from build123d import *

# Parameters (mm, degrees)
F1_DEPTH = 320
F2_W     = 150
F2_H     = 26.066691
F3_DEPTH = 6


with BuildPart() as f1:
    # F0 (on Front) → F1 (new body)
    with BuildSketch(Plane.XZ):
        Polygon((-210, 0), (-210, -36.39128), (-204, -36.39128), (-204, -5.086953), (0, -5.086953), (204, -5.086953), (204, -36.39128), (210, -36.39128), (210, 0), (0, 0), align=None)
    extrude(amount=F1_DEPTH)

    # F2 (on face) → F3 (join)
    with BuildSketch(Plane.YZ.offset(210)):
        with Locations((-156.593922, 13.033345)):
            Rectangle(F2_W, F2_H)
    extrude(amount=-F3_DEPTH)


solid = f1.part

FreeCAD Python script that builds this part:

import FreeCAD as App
import Part
import Sketcher

V = App.Vector

doc = App.newDocument("Part")
body = doc.addObject("PartDesign::Body", "Body")

# Sketch on XZ plane
sketch1 = body.newObject("Sketcher::SketchObject", "Sketch")
sketch1.AttachmentSupport = (doc.getObject("XZ_Plane"), [""])
sketch1.MapMode = "FlatFace"
sketch1.addGeometry([
    Part.LineSegment(V(-210, 0, 0), V(-210, -36, 0)),  # 0
    Part.LineSegment(V(-210, -36, 0), V(-204, -36, 0)),  # 1
    Part.LineSegment(V(-204, -36, 0), V(-204, -5, 0)),  # 2
    Part.LineSegment(V(-204, -5, 0), V(204, -5, 0)),  # 3
    Part.LineSegment(V(204, -5, 0), V(204, -36, 0)),  # 4
    Part.LineSegment(V(204, -36, 0), V(210, -36, 0)),  # 5
    Part.LineSegment(V(210, -36, 0), V(210, 0, 0)),  # 6
    Part.LineSegment(V(210, 0, 0), V(-210, 0, 0)),  # 7
], False)
sketch1.addConstraint([
    Sketcher.Constraint("Coincident", 0, 2, 1, 1),
    Sketcher.Constraint("Coincident", 1, 2, 2, 1),
    Sketcher.Constraint("Coincident", 2, 2, 3, 1),
    Sketcher.Constraint("Coincident", 3, 2, 4, 1),
    Sketcher.Constraint("Coincident", 4, 2, 5, 1),
    Sketcher.Constraint("Coincident", 5, 2, 6, 1),
    Sketcher.Constraint("Coincident", 6, 2, 7, 1),
    Sketcher.Constraint("Coincident", 7, 2, 0, 1),
    Sketcher.Constraint("Vertical", 0),
    Sketcher.Constraint("Horizontal", 1),
    Sketcher.Constraint("Vertical", 2),
    Sketcher.Constraint("Horizontal", 3),
    Sketcher.Constraint("Vertical", 4),
    Sketcher.Constraint("Horizontal", 5),
    Sketcher.Constraint("Vertical", 6),
    Sketcher.Constraint("Horizontal", 7),
    Sketcher.Constraint("Symmetric", 6, 2, 7, 2, -1, 1),
    Sketcher.Constraint("Symmetric", 1, 2, 4, 2, -2),
    Sketcher.Constraint("DistanceX", 1, 1, 1, 2, 6.0),
    Sketcher.Constraint("DistanceX", 3, 1, 3, 2, 408.0),
    Sketcher.Constraint("DistanceY", 0, 2, 0, 1, 36.39128),
    Sketcher.Constraint("DistanceY", 2, 1, 2, 2, 31.304327),
])
pad1 = body.newObject("PartDesign::Pad", "Pad")
pad1.Profile = sketch1
pad1.Length = 320

# Sketch on YZ plane
sketch2 = body.newObject("Sketcher::SketchObject", "Sketch001")
sketch2.AttachmentSupport = (doc.getObject("YZ_Plane"), [""])
sketch2.MapMode = "FlatFace"
sketch2.AttachmentOffset = App.Placement(V(0, 0, 210), App.Rotation())
sketch2.addGeometry([
    Part.LineSegment(V(-232, 26, 0), V(-232, 0, 0)),
    Part.LineSegment(V(-232, 0, 0), V(-82, 0, 0)),
    Part.LineSegment(V(-82, 0, 0), V(-82, 26, 0)),
    Part.LineSegment(V(-82, 26, 0), V(-232, 26, 0)),
], False)
sketch2.addConstraint([
    Sketcher.Constraint("Coincident", 0, 2, 1, 1),
    Sketcher.Constraint("Coincident", 1, 2, 2, 1),
    Sketcher.Constraint("Coincident", 2, 2, 3, 1),
    Sketcher.Constraint("Coincident", 3, 2, 0, 1),
    Sketcher.Constraint("Vertical", 0),
    Sketcher.Constraint("Horizontal", 1),
    Sketcher.Constraint("Vertical", 2),
    Sketcher.Constraint("Horizontal", 3),
    Sketcher.Constraint("PointOnObject", 0, 2, -1),
    Sketcher.Constraint("DistanceX", 1, 1, 1, 2, 150.0),
    Sketcher.Constraint("DistanceY", 0, 2, 0, 1, 26.066691),
    Sketcher.Constraint("DistanceX", 0, 2, -1, 1, 231.593922),
])
pad2 = body.newObject("PartDesign::Pad", "Pad001")
pad2.Profile = sketch2
pad2.Length = 6
pad2.Reversed = True

doc.recompute()
